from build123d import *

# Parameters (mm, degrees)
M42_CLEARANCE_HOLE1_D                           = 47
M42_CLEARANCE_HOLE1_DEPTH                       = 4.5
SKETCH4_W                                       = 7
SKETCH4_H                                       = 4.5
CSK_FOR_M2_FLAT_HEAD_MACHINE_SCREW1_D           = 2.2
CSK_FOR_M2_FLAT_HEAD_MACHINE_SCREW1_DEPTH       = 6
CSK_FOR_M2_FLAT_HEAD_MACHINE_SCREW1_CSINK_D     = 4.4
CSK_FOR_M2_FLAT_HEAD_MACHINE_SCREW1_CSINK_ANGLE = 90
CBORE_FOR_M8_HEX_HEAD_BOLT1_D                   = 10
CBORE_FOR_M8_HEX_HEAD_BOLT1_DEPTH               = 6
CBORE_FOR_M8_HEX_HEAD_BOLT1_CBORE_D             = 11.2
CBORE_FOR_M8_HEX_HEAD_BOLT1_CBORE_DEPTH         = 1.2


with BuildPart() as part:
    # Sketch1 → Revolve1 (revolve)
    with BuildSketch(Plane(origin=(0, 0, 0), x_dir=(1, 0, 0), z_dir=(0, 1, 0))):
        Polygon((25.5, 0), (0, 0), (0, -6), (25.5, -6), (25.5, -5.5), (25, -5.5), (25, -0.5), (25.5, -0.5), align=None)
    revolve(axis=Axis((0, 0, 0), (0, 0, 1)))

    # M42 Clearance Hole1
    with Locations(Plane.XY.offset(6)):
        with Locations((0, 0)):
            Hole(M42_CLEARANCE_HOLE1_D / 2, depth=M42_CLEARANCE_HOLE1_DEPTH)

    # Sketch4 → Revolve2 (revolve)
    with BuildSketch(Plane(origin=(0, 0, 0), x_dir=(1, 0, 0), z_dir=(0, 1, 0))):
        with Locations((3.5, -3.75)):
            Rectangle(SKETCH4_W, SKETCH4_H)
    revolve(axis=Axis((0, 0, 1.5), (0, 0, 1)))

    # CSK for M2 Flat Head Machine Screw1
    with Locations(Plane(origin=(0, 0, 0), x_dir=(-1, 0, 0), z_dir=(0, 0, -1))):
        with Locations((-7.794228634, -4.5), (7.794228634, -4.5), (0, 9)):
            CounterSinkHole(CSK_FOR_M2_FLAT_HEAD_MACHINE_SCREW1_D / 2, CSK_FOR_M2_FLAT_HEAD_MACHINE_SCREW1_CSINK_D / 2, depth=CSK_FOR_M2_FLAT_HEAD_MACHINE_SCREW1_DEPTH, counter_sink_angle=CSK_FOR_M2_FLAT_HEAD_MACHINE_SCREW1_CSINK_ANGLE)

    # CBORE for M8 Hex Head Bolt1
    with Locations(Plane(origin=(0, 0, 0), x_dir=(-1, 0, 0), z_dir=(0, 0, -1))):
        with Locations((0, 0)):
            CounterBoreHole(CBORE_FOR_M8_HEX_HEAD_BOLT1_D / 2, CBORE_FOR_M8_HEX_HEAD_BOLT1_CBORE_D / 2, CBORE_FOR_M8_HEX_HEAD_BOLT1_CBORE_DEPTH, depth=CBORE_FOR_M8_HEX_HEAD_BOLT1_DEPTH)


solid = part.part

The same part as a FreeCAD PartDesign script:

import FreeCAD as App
import Part
import Sketcher
Q = App.Units.Quantity


def add_polygon(sketch, points):
    """Adds a closed chain of lines whose ends are joined by coincident constraints."""
    first, n = sketch.GeometryCount, len(points)
    for a, b in zip(points, points[1:] + points[:1]):
        sketch.addGeometry(Part.LineSegment(App.Vector(*a, 0), App.Vector(*b, 0)), False)
    for i in range(n):
        sketch.addConstraint(Sketcher.Constraint("Coincident", first + i, 2, first + (i + 1) % n, 1))

doc = App.newDocument("Part")
body = doc.addObject("PartDesign::Body", "Body")

sketch1 = body.newObject("Sketcher::SketchObject", "Sketch")
sketch1.AttachmentSupport = (doc.getObject("XZ_Plane"), [""])
sketch1.MapMode = "FlatFace"
add_polygon(sketch1, [(25.5, 0), (0, 0), (0, 6), (25.5, 6), (25.5, 5.5), (25, 5.5), (25, 0.5), (25.5, 0.5)])
sketch1.addConstraint([
    Sketcher.Constraint("Horizontal", 0),
    Sketcher.Constraint("Vertical", 1),
    Sketcher.Constraint("Horizontal", 2),
    Sketcher.Constraint("Vertical", 3),
    Sketcher.Constraint("Horizontal", 4),
    Sketcher.Constraint("Vertical", 5),
    Sketcher.Constraint("Horizontal", 6),
    Sketcher.Constraint("Vertical", 7),
    Sketcher.Constraint("Coincident", 0, 2, -1, 1),
    Sketcher.Constraint("Vertical", 3, 2, 6, 2),
    Sketcher.Constraint("Equal", 6, 3),
    Sketcher.Constraint("Equal", 3, 7),
    Sketcher.Constraint("DistanceY", 1, 1, 1, 2, Q("6 mm")),
    Sketcher.Constraint("DistanceY", 5, 2, 5, 1, Q("5 mm")),
    Sketcher.Constraint("DistanceX", 0, 2, 0, 1, Q("25.5 mm")),
])
revolution = body.newObject("PartDesign::Revolution", "Revolution")
revolution.Profile = sketch1
revolution.ReferenceAxis = (sketch1, ["V_Axis"])
revolution.Angle = 360

sketch2 = body.newObject("Sketcher::SketchObject", "Sketch001")
sketch2.AttachmentSupport = (doc.getObject("XY_Plane"), [""])
sketch2.MapMode = "FlatFace"
sketch2.AttachmentOffset = App.Placement(App.Vector(0, 0, 6), App.Rotation())
sketch2.addGeometry(Part.Circle(App.Vector(0, 0, 0), App.Vector(0, 0, 1), 24), False)
sketch2.addConstraint([
    Sketcher.Constraint("Coincident", 0, 3, -1, 1),
    Sketcher.Constraint("Diameter", 0, Q("47 mm")),
])
doc.recompute()
hole = body.newObject("PartDesign::Hole", "Hole")
hole.Profile = sketch2
hole.ThreadType = "None"
hole.Diameter = 47
hole.DepthType = "Dimension"
hole.Depth = 4.5
hole.DrillPoint = "Flat"

sketch3 = body.newObject("Sketcher::SketchObject", "Sketch002")
sketch3.AttachmentSupport = (doc.getObject("XZ_Plane"), [""])
sketch3.MapMode = "FlatFace"
add_polygon(sketch3, [(0, 1.5), (0, 6), (7, 6), (7, 1.5)])
sketch3.addConstraint([
    Sketcher.Constraint("Vertical", 0),
    Sketcher.Constraint("Horizontal", 1),
    Sketcher.Constraint("Vertical", 2),
    Sketcher.Constraint("Horizontal", 3),
    Sketcher.Constraint("PointOnObject", 0, 2, -2),
    Sketcher.Constraint("DistanceX", 1, 1, 1, 2, Q("7 mm")),
    Sketcher.Constraint("DistanceY", 0, 1, 0, 2, Q("4.5 mm")),
    Sketcher.Constraint("DistanceY", -1, 1, 0, 2, Q("6 mm")),
])
revolution2 = body.newObject("PartDesign::Revolution", "Revolution001")
revolution2.Profile = sketch3
revolution2.ReferenceAxis = (sketch3, ["V_Axis"])
revolution2.Angle = 360

sketch4 = body.newObject("Sketcher::SketchObject", "Sketch003")
sketch4.AttachmentSupport = (doc.getObject("XY_Plane"), [""])
sketch4.MapMode = "FlatFace"
sketch4.addGeometry([
    Part.Circle(App.Vector(7.8, -4.5, 0), App.Vector(0, 0, 1), 1.1),
    Part.Circle(App.Vector(-7.8, -4.5, 0), App.Vector(0, 0, 1), 1.1),
    Part.Circle(App.Vector(0, 9, 0), App.Vector(0, 0, 1), 1.1),
], False)
sketch4.addConstraint([
    Sketcher.Constraint("Equal", 0, 1),
    Sketcher.Constraint("Equal", 1, 2),
    Sketcher.Constraint("Symmetric", 0, 3, 1, 3, -2),
    Sketcher.Constraint("PointOnObject", 2, 3, -2),
    Sketcher.Constraint("Diameter", 0, Q("2.2 mm")),
    Sketcher.Constraint("DistanceY", -1, 1, 2, 3, Q("9 mm")),
    Sketcher.Constraint("DistanceY", 0, 3, -1, 1, Q("4.5 mm")),
    Sketcher.Constraint("DistanceX", -1, 1, 0, 3, Q("7.794229 mm")),
])
doc.recompute()
hole2 = body.newObject("PartDesign::Hole", "Hole001")
hole2.Profile = sketch4
hole2.ThreadType = "None"
hole2.Diameter = 2.2
hole2.DepthType = "Dimension"
hole2.Depth = 6
hole2.DrillPoint = "Flat"
hole2.HoleCutType = "Countersink"
hole2.HoleCutDiameter = 4.4
hole2.HoleCutCountersinkAngle = 90
hole2.Reversed = True

sketch5 = body.newObject("Sketcher::SketchObject", "Sketch004")
sketch5.AttachmentSupport = (doc.getObject("XY_Plane"), [""])
sketch5.MapMode = "FlatFace"
sketch5.addGeometry(Part.Circle(App.Vector(0, 0, 0), App.Vector(0, 0, 1), 5), False)
sketch5.addConstraint([
    Sketcher.Constraint("Coincident", 0, 3, -1, 1),
    Sketcher.Constraint("Diameter", 0, Q("10 mm")),
])
doc.recompute()
hole3 = body.newObject("PartDesign::Hole", "Hole002")
hole3.Profile = sketch5
hole3.ThreadType = "None"
hole3.Diameter = 10
hole3.DepthType = "Dimension"
hole3.Depth = 6
hole3.DrillPoint = "Flat"
hole3.HoleCutType = "Counterbore"
hole3.HoleCutDiameter = 11.2
hole3.HoleCutDepth = 1.2
hole3.Reversed = True

doc.recompute()
